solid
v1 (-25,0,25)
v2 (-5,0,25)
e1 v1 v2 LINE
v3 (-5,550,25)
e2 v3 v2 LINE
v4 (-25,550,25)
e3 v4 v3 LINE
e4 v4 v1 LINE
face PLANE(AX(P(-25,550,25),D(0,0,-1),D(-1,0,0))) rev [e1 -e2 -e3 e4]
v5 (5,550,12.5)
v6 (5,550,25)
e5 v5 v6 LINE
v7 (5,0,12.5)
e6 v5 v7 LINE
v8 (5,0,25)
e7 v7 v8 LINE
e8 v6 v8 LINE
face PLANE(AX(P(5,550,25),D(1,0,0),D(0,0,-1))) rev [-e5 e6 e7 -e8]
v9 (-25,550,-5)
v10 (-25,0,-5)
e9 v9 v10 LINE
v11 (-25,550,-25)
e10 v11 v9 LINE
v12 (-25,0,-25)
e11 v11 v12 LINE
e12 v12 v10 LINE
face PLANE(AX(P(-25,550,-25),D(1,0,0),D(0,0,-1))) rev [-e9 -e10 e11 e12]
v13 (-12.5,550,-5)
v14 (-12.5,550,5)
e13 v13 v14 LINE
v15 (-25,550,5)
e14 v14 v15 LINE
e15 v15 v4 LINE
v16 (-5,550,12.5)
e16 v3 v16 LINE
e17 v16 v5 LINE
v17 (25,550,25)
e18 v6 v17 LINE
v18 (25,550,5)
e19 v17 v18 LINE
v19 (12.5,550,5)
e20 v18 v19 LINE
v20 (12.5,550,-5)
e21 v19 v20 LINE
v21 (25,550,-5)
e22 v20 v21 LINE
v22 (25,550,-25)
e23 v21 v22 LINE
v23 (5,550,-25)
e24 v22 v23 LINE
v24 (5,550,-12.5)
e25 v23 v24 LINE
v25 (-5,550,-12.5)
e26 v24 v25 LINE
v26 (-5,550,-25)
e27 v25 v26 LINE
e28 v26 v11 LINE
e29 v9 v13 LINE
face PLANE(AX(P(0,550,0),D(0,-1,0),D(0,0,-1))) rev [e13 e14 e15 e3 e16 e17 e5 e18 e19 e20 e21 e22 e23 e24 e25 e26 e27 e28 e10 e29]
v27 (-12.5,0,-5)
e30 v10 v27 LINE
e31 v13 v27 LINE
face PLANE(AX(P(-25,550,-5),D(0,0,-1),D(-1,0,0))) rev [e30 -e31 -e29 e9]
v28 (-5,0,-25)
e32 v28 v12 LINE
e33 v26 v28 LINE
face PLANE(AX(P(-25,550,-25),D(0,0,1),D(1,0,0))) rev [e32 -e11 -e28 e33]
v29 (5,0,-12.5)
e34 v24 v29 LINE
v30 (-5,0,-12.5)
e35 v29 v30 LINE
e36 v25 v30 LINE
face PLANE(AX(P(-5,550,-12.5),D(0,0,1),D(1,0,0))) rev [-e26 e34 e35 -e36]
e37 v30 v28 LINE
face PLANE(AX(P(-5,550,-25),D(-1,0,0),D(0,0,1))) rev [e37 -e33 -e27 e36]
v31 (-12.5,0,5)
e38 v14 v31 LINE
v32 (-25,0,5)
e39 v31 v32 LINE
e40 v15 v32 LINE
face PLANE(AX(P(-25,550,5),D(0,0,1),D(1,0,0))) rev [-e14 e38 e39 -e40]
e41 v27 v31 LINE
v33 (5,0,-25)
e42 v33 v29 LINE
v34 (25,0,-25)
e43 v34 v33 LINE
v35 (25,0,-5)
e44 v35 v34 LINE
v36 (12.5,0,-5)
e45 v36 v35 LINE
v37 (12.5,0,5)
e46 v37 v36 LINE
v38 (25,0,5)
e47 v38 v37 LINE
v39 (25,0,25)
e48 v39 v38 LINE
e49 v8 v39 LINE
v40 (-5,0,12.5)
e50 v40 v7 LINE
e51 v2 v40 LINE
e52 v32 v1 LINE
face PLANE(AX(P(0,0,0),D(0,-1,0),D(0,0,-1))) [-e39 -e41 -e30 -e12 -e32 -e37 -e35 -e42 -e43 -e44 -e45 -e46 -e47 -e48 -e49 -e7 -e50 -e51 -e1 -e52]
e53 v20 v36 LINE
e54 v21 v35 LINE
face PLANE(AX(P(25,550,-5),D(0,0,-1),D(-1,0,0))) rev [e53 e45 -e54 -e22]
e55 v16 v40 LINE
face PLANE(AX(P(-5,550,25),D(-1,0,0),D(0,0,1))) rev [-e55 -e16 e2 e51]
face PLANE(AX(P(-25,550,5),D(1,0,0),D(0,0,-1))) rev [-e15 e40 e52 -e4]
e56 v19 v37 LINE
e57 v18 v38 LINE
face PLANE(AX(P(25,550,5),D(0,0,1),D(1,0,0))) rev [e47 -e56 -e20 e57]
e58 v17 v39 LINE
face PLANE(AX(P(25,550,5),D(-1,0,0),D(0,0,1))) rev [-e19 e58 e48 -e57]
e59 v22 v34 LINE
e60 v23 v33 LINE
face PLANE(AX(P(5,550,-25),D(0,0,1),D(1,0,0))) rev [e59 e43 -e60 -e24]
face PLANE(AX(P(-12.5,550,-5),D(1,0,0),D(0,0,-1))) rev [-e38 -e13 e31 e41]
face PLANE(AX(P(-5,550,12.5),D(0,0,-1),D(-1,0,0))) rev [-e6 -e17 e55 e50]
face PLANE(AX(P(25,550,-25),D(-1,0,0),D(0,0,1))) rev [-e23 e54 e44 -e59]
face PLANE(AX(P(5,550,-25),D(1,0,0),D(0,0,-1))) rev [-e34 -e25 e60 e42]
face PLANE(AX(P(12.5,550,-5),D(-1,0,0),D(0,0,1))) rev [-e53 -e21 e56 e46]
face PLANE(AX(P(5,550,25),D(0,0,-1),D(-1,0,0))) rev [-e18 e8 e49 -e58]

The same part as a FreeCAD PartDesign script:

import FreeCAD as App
import Part
import Sketcher
from FreeCAD import Vector

doc = App.newDocument("Part")
body = doc.addObject("PartDesign::Body", "Body")

# Sketch on XZ plane
sketch1 = doc.addObject("Sketcher::SketchObject", "Sketch")
body.addObject(sketch1)
sketch1.AttachmentSupport = (doc.XZ_Plane, [""])
sketch1.MapMode = "FlatFace"
sketch1.addGeometry([
    Part.LineSegment(Vector(-5, -25, 0), Vector(-25, -25, 0)),  # 0
    Part.LineSegment(Vector(-25, -25, 0), Vector(-25, -5, 0)),  # 1
    Part.LineSegment(Vector(-25, -5, 0), Vector(-12, -5, 0)),  # 2
    Part.LineSegment(Vector(-12, -5, 0), Vector(-12, 5, 0)),  # 3
    Part.LineSegment(Vector(-12, 5, 0), Vector(-25, 5, 0)),  # 4
    Part.LineSegment(Vector(-25, 5, 0), Vector(-25, 25, 0)),  # 5
    Part.LineSegment(Vector(-25, 25, 0), Vector(-5, 25, 0)),  # 6
    Part.LineSegment(Vector(-5, 25, 0), Vector(-5, 12, 0)),  # 7
    Part.LineSegment(Vector(-5, 12, 0), Vector(5, 12, 0)),  # 8
    Part.LineSegment(Vector(5, 12, 0), Vector(5, 25, 0)),  # 9
    Part.LineSegment(Vector(5, 25, 0), Vector(25, 25, 0)),  # 10
    Part.LineSegment(Vector(25, 25, 0), Vector(25, 5, 0)),  # 11
    Part.LineSegment(Vector(25, 5, 0), Vector(12, 5, 0)),  # 12
    Part.LineSegment(Vector(12, 5, 0), Vector(12, -5, 0)),  # 13
    Part.LineSegment(Vector(12, -5, 0), Vector(25, -5, 0)),  # 14
    Part.LineSegment(Vector(25, -5, 0), Vector(25, -25, 0)),  # 15
    Part.LineSegment(Vector(25, -25, 0), Vector(5, -25, 0)),  # 16
    Part.LineSegment(Vector(5, -25, 0), Vector(5, -12, 0)),  # 17
    Part.LineSegment(Vector(5, -12, 0), Vector(-5, -12, 0)),  # 18
    Part.LineSegment(Vector(-5, -12, 0), Vector(-5, -25, 0)),  # 19
], False)
sketch1.addConstraint([
    Sketcher.Constraint("Coincident", 0, 2, 1, 1),
    Sketcher.Constraint("Coincident", 1, 2, 2, 1),
    Sketcher.Constraint("Coincident", 2, 2, 3, 1),
    Sketcher.Constraint("Coincident", 3, 2, 4, 1),
    Sketcher.Constraint("Coincident", 4, 2, 5, 1),
    Sketcher.Constraint("Coincident", 5, 2, 6, 1),
    Sketcher.Constraint("Coincident", 6, 2, 7, 1),
    Sketcher.Constraint("Coincident", 7, 2, 8, 1),
    Sketcher.Constraint("Coincident", 8, 2, 9, 1),
    Sketcher.Constraint("Coincident", 9, 2, 10, 1),
    Sketcher.Constraint("Coincident", 10, 2, 11, 1),
    Sketcher.Constraint("Coincident", 11, 2, 12, 1),
    Sketcher.Constraint("Coincident", 12, 2, 13, 1),
    Sketcher.Constraint("Coincident", 13, 2, 14, 1),
    Sketcher.Constraint("Coincident", 14, 2, 15, 1),
    Sketcher.Constraint("Coincident", 15, 2, 16, 1),
    Sketcher.Constraint("Coincident", 16, 2, 17, 1),
    Sketcher.Constraint("Coincident", 17, 2, 18, 1),
    Sketcher.Constraint("Coincident", 18, 2, 19, 1),
    Sketcher.Constraint("Coincident", 19, 2, 0, 1),
    Sketcher.Constraint("Horizontal", 0),
    Sketcher.Constraint("Vertical", 1),
    Sketcher.Constraint("Horizontal", 2),
    Sketcher.Constraint("Vertical", 3),
    Sketcher.Constraint("Horizontal", 4),
    Sketcher.Constraint("Vertical", 5),
    Sketcher.Constraint("Horizontal", 6),
    Sketcher.Constraint("Vertical", 7),
    Sketcher.Constraint("Horizontal", 8),
    Sketcher.Constraint("Vertical", 9),
    Sketcher.Constraint("Horizontal", 10),
    Sketcher.Constraint("Vertical", 11),
    Sketcher.Constraint("Horizontal", 12),
    Sketcher.Constraint("Vertical", 13),
    Sketcher.Constraint("Horizontal", 14),
    Sketcher.Constraint("Vertical", 15),
    Sketcher.Constraint("Horizontal", 16),
    Sketcher.Constraint("Vertical", 17),
    Sketcher.Constraint("Horizontal", 18),
    Sketcher.Constraint("Vertical", 19),
    Sketcher.Constraint("Symmetric", 0, 2, 10, 2, -1, 1),
    Sketcher.Constraint("Symmetric", 2, 2, 12, 2, -1, 1),
    Sketcher.Constraint("Symmetric", 4, 2, 14, 2, -1, 1),
    Sketcher.Constraint("Symmetric", 6, 2, 16, 2, -1, 1),
    Sketcher.Constraint("Symmetric", 8, 2, 18, 2, -1, 1),
    Sketcher.Constraint("Symmetric", 6, 2, 9, 2, -2),
    Sketcher.Constraint("Symmetric", 4, 2, 11, 2, -2),
    Sketcher.Constraint("Equal", 16, 1),
    Sketcher.Constraint("Equal", 18, 3),
    Sketcher.Constraint("Equal", 14, 7),
    Sketcher.Constraint("DistanceX", 0, 2, 0, 1, 20.0),
    Sketcher.Constraint("DistanceX", 8, 1, 8, 2, 10.0),
    Sketcher.Constraint("DistanceX", 2, 1, 2, 2, 12.5),
])
pad1 = doc.addObject("PartDesign::Pad", "Pad")
body.addObject(pad1)
pad1.Profile = sketch1
pad1.Length = 550
pad1.Reversed = True

# Sketch on XZ plane
sketch2 = doc.addObject("Sketcher::SketchObject", "Sketch001")
body.addObject(sketch2)
sketch2.AttachmentSupport = (doc.XZ_Plane, [""])
sketch2.MapMode = "FlatFace"
sketch2.addGeometry([
    Part.LineSegment(Vector(-5, -25, 0), Vector(-25, -25, 0)),  # 0
    Part.LineSegment(Vector(-25, -25, 0), Vector(-25, -5, 0)),  # 1
    Part.LineSegment(Vector(-25, -5, 0), Vector(-12, -5, 0)),  # 2
    Part.LineSegment(Vector(-12, -5, 0), Vector(-12, 5, 0)),  # 3
    Part.LineSegment(Vector(-12, 5, 0), Vector(-25, 5, 0)),  # 4
    Part.LineSegment(Vector(-25, 5, 0), Vector(-25, 25, 0)),  # 5
    Part.LineSegment(Vector(-25, 25, 0), Vector(-5, 25, 0)),  # 6
    Part.LineSegment(Vector(-5, 25, 0), Vector(-5, 12, 0)),  # 7
    Part.LineSegment(Vector(-5, 12, 0), Vector(5, 12, 0)),  # 8
    Part.LineSegment(Vector(5, 12, 0), Vector(5, 25, 0)),  # 9
    Part.LineSegment(Vector(5, 25, 0), Vector(25, 25, 0)),  # 10
    Part.LineSegment(Vector(25, 25, 0), Vector(25, 5, 0)),  # 11
    Part.LineSegment(Vector(25, 5, 0), Vector(12, 5, 0)),  # 12
    Part.LineSegment(Vector(12, 5, 0), Vector(12, -5, 0)),  # 13
    Part.LineSegment(Vector(12, -5, 0), Vector(25, -5, 0)),  # 14
    Part.LineSegment(Vector(25, -5, 0), Vector(25, -25, 0)),  # 15
    Part.LineSegment(Vector(25, -25, 0), Vector(5, -25, 0)),  # 16
    Part.LineSegment(Vector(5, -25, 0), Vector(5, -12, 0)),  # 17
    Part.LineSegment(Vector(5, -12, 0), Vector(-5, -12, 0)),  # 18
    Part.LineSegment(Vector(-5, -12, 0), Vector(-5, -25, 0)),  # 19
], False)
sketch2.addConstraint([
    Sketcher.Constraint("Coincident", 0, 2, 1, 1),
    Sketcher.Constraint("Coincident", 1, 2, 2, 1),
    Sketcher.Constraint("Coincident", 2, 2, 3, 1),
    Sketcher.Constraint("Coincident", 3, 2, 4, 1),
    Sketcher.Constraint("Coincident", 4, 2, 5, 1),
    Sketcher.Constraint("Coincident", 5, 2, 6, 1),
    Sketcher.Constraint("Coincident", 6, 2, 7, 1),
    Sketcher.Constraint("Coincident", 7, 2, 8, 1),
    Sketcher.Constraint("Coincident", 8, 2, 9, 1),
    Sketcher.Constraint("Coincident", 9, 2, 10, 1),
    Sketcher.Constraint("Coincident", 10, 2, 11, 1),
    Sketcher.Constraint("Coincident", 11, 2, 12, 1),
    Sketcher.Constraint("Coincident", 12, 2, 13, 1),
    Sketcher.Constraint("Coincident", 13, 2, 14, 1),
    Sketcher.Constraint("Coincident", 14, 2, 15, 1),
    Sketcher.Constraint("Coincident", 15, 2, 16, 1),
    Sketcher.Constraint("Coincident", 16, 2, 17, 1),
    Sketcher.Constraint("Coincident", 17, 2, 18, 1),
    Sketcher.Constraint("Coincident", 18, 2, 19, 1),
    Sketcher.Constraint("Coincident", 19, 2, 0, 1),
    Sketcher.Constraint("Horizontal", 0),
    Sketcher.Constraint("Vertical", 1),
    Sketcher.Constraint("Horizontal", 2),
    Sketcher.Constraint("Vertical", 3),
    Sketcher.Constraint("Horizontal", 4),
    Sketcher.Constraint("Vertical", 5),
    Sketcher.Constraint("Horizontal", 6),
    Sketcher.Constraint("Vertical", 7),
    Sketcher.Constraint("Horizontal", 8),
    Sketcher.Constraint("Vertical", 9),
    Sketcher.Constraint("Horizontal", 10),
    Sketcher.Constraint("Vertical", 11),
    Sketcher.Constraint("Horizontal", 12),
    Sketcher.Constraint("Vertical", 13),
    Sketcher.Constraint("Horizontal", 14),
    Sketcher.Constraint("Vertical", 15),
    Sketcher.Constraint("Horizontal", 16),
    Sketcher.Constraint("Vertical", 17),
    Sketcher.Constraint("Horizontal", 18),
    Sketcher.Constraint("Vertical", 19),
    Sketcher.Constraint("Symmetric", 0, 2, 10, 2, -1, 1),
    Sketcher.Constraint("Symmetric", 2, 2, 12, 2, -1, 1),
    Sketcher.Constraint("Symmetric", 4, 2, 14, 2, -1, 1),
    Sketcher.Constraint("Symmetric", 6, 2, 16, 2, -1, 1),
    Sketcher.Constraint("Symmetric", 8, 2, 18, 2, -1, 1),
    Sketcher.Constraint("Symmetric", 6, 2, 9, 2, -2),
    Sketcher.Constraint("Symmetric", 4, 2, 11, 2, -2),
    Sketcher.Constraint("Equal", 16, 1),
    Sketcher.Constraint("Equal", 18, 3),
    Sketcher.Constraint("Equal", 14, 7),
    Sketcher.Constraint("DistanceX", 0, 2, 0, 1, 20.0),
    Sketcher.Constraint("DistanceX", 8, 1, 8, 2, 10.0),
    Sketcher.Constraint("DistanceX", 2, 1, 2, 2, 12.5),
])
pad2 = doc.addObject("PartDesign::Pad", "Pad001")
body.addObject(pad2)
pad2.Profile = sketch2
pad2.Length = 10
pad2.Reversed = True

doc.recompute()
